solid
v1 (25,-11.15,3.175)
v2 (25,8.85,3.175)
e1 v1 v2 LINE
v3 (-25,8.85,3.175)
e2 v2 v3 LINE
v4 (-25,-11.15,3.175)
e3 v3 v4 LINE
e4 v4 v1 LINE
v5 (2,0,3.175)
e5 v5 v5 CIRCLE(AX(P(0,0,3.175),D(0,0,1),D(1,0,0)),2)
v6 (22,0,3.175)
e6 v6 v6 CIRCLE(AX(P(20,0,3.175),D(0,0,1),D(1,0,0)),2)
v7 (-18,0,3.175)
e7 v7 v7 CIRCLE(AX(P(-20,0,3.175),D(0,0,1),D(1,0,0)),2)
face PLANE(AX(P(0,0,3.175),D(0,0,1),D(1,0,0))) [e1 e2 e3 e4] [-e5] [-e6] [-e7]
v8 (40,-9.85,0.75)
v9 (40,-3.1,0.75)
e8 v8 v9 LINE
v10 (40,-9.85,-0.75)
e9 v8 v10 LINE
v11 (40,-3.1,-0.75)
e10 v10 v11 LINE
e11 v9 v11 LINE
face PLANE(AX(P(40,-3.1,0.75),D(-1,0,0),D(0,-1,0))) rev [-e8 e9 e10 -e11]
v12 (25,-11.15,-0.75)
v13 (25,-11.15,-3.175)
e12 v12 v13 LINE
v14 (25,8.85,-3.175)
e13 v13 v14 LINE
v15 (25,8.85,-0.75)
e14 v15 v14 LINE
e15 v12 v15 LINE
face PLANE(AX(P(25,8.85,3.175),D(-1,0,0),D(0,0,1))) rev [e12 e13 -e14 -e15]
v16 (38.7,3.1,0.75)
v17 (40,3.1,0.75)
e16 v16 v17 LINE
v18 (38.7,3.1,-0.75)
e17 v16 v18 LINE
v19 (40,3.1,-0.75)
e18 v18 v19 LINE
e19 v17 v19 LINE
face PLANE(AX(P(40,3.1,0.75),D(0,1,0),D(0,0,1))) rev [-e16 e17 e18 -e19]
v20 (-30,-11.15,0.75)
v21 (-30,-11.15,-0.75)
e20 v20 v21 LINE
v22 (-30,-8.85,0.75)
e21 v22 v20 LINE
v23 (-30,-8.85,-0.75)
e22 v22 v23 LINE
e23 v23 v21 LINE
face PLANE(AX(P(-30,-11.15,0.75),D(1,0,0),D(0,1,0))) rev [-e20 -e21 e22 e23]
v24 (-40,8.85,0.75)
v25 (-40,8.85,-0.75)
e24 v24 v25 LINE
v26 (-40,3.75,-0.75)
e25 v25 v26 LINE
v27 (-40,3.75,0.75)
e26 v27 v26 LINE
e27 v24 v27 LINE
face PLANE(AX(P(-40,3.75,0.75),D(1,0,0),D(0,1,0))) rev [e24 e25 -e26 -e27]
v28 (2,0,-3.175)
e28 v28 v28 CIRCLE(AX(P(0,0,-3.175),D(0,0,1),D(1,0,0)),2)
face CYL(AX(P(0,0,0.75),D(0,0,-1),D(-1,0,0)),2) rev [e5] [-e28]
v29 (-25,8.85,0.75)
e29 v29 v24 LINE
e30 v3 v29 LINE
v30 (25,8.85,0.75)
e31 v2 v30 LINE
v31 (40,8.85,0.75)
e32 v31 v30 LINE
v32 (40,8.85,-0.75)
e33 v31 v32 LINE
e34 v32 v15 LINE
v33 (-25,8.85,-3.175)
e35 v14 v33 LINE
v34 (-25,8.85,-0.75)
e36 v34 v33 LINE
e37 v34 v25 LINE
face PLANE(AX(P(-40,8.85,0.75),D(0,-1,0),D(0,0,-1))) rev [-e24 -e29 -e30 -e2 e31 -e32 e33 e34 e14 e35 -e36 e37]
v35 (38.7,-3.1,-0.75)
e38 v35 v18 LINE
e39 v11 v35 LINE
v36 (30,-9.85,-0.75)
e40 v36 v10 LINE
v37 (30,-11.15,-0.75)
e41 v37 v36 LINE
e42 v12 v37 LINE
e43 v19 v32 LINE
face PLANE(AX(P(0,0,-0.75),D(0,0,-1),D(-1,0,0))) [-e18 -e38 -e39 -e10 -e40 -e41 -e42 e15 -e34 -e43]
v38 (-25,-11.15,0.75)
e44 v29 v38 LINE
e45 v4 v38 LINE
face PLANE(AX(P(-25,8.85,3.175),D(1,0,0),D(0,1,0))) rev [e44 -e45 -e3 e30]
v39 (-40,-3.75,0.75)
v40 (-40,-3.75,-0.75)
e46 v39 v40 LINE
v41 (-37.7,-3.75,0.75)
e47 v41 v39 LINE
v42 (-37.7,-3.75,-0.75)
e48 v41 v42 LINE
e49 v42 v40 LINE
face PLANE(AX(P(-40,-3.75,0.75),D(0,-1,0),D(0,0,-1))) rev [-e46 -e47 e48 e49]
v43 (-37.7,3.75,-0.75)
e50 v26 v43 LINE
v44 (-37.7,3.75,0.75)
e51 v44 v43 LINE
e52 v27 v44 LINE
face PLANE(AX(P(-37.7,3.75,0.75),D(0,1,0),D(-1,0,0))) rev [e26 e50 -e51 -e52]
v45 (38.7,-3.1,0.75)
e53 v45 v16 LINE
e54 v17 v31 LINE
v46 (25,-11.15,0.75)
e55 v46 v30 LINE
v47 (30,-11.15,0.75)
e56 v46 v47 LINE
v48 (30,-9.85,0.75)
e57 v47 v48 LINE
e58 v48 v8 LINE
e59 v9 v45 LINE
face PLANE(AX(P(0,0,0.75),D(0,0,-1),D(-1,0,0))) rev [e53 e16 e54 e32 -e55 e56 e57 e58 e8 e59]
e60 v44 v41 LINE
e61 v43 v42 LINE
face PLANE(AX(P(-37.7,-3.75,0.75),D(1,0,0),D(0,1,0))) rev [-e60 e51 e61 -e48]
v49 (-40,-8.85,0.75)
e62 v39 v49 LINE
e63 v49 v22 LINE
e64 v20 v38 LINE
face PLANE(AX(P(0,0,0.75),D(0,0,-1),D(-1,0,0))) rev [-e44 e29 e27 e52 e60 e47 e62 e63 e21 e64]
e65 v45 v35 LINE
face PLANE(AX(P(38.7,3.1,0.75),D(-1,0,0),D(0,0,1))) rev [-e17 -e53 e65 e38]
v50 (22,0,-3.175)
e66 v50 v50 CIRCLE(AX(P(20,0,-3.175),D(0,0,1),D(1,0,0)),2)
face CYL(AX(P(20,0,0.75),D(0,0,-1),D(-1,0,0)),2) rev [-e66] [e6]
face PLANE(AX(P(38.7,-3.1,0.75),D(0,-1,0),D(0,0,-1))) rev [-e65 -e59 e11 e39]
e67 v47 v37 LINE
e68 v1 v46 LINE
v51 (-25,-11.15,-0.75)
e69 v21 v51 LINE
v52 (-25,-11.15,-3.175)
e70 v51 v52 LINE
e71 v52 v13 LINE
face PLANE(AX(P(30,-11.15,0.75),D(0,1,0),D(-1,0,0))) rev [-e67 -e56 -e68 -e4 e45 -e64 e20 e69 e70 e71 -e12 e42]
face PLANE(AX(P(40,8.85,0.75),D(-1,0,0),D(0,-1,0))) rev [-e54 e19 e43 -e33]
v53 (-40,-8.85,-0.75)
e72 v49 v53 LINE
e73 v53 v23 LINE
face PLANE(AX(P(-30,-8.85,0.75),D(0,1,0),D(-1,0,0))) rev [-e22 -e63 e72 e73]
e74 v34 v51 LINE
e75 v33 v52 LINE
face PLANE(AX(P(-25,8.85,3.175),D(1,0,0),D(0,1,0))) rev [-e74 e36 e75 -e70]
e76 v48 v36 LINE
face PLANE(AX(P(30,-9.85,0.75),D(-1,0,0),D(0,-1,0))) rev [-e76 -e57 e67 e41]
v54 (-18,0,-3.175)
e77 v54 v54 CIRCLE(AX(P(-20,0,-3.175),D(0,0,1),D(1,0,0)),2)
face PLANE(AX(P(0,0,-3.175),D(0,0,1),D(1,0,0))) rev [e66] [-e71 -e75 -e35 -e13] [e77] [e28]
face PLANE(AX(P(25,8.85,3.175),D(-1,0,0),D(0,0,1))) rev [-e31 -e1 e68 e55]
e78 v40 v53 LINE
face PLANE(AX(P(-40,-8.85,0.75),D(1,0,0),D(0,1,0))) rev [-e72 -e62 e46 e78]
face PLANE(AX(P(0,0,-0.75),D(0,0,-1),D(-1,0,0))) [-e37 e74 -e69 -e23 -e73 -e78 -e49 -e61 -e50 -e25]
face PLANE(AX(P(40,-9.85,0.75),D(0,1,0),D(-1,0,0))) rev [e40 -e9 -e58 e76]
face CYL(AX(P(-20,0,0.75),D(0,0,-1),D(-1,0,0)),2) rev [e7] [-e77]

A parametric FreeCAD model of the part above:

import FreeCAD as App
import Part
import Sketcher


def add_polygon(sketch, points):
    """Adds a closed chain of lines whose ends are joined by coincident constraints."""
    first, n = sketch.GeometryCount, len(points)
    for a, b in zip(points, points[1:] + points[:1]):
        sketch.addGeometry(Part.LineSegment(App.Vector(*a, 0), App.Vector(*b, 0)), False)
    for i in range(n):
        sketch.addConstraint(Sketcher.Constraint("Coincident", first + i, 2, first + (i + 1) % n, 1))

doc = App.newDocument("Part")
body = doc.addObject("PartDesign::Body", "Body")

sketch1 = doc.addObject("Sketcher::SketchObject", "Sketch")
body.addObject(sketch1)
sketch1.AttachmentSupport = (doc.XY_Plane, [""])
sketch1.MapMode = "FlatFace"
add_polygon(sketch1, [(40, 8.8), (-40, 8.8), (-40, 3.8), (-37.7, 3.8), (-37.7, -3.8), (-40, -3.8), (-40, -8.8), (-30, -8.8), (-30, -11.2), (30, -11.2), (30, -9.8), (40, -9.8), (40, -3.1), (38.7, -3.1), (38.7, 3.1), (40, 3.1)])
sketch1.addGeometry(Part.Circle(App.Vector(20, 0, 0), App.Vector(0, 0, 1), 2), False)
sketch1.addGeometry(Part.Circle(App.Vector(0, 0, 0), App.Vector(0, 0, 1), 2), False)
sketch1.addGeometry(Part.Circle(App.Vector(-20, 0, 0), App.Vector(0, 0, 1), 2), False)
sketch1.addConstraint(Sketcher.Constraint("Horizontal", 0))
sketch1.addConstraint(Sketcher.Constraint("Vertical", 1))
sketch1.addConstraint(Sketcher.Constraint("Horizontal", 2))
sketch1.addConstraint(Sketcher.Constraint("Vertical", 3))
sketch1.addConstraint(Sketcher.Constraint("Horizontal", 4))
sketch1.addConstraint(Sketcher.Constraint("Vertical", 5))
sketch1.addConstraint(Sketcher.Constraint("Horizontal", 6))
sketch1.addConstraint(Sketcher.Constraint("Vertical", 7))
sketch1.addConstraint(Sketcher.Constraint("Horizontal", 8))
sketch1.addConstraint(Sketcher.Constraint("Vertical", 9))
sketch1.addConstraint(Sketcher.Constraint("Horizontal", 10))
sketch1.addConstraint(Sketcher.Constraint("Vertical", 11))
sketch1.addConstraint(Sketcher.Constraint("Horizontal", 12))
sketch1.addConstraint(Sketcher.Constraint("Vertical", 13))
sketch1.addConstraint(Sketcher.Constraint("Horizontal", 14))
sketch1.addConstraint(Sketcher.Constraint("Vertical", 15))
sketch1.addConstraint(Sketcher.Constraint("Coincident", 17, 3, -1, 1))
sketch1.addConstraint(Sketcher.Constraint("Equal", 16, 17))
sketch1.addConstraint(Sketcher.Constraint("Equal", 17, 18))
sketch1.addConstraint(Sketcher.Constraint("Symmetric", 16, 3, 18, 3, -1, 1))
sketch1.addConstraint(Sketcher.Constraint("Symmetric", 5, 2, 15, 2, -1, 1))
sketch1.addConstraint(Sketcher.Constraint("Symmetric", 1, 2, 4, 2, -1))
sketch1.addConstraint(Sketcher.Constraint("Symmetric", 11, 2, 14, 2, -1))
sketch1.addConstraint(Sketcher.Constraint("PointOnObject", 16, 3, -1))
sketch1.addConstraint(Sketcher.Constraint("Equal", 6, 10))
sketch1.addConstraint(Sketcher.Constraint("Equal", 4, 7))
sketch1.addConstraint(Sketcher.Constraint("Equal", 14, 9))
sketch1.addConstraint(Sketcher.Constraint("Diameter", 16, 4.0))
sketch1.addConstraint(Sketcher.Constraint("DistanceX", 0, 2, 0, 1, 80.0))
sketch1.addConstraint(Sketcher.Constraint("DistanceX", 6, 1, 6, 2, 10.0))
sketch1.addConstraint(Sketcher.Constraint("DistanceX", 2, 1, 2, 2, 2.3))
sketch1.addConstraint(Sketcher.Constraint("DistanceX", 12, 2, 12, 1, 1.3))
sketch1.addConstraint(Sketcher.Constraint("DistanceY", 1, 2, 1, 1, 5.1))
sketch1.addConstraint(Sketcher.Constraint("DistanceY", 3, 2, 3, 1, 7.5))
sketch1.addConstraint(Sketcher.Constraint("DistanceY", 13, 1, 13, 2, 6.2))
sketch1.addConstraint(Sketcher.Constraint("DistanceX", -1, 1, 16, 3, 20.0))
pad1 = doc.addObject("PartDesign::Pad", "Pad")
body.addObject(pad1)
pad1.Profile = sketch1
pad1.Length = 1.5
pad1.Midplane = True

sketch2 = doc.addObject("Sketcher::SketchObject", "Sketch001")
body.addObject(sketch2)
sketch2.AttachmentSupport = (doc.XY_Plane, [""])
sketch2.MapMode = "FlatFace"
add_polygon(sketch2, [(-25, 8.8), (-25, -11.2), (25, -11.2), (25, 8.8)])
sketch2.addGeometry(Part.Circle(App.Vector(-20, 0, 0), App.Vector(0, 0, 1), 2), False)
sketch2.addGeometry(Part.Circle(App.Vector(0, 0, 0), App.Vector(0, 0, 1), 2), False)
sketch2.addGeometry(Part.Circle(App.Vector(20, 0, 0), App.Vector(0, 0, 1), 2), False)
sketch2.addConstraint(Sketcher.Constraint("Vertical", 0))
sketch2.addConstraint(Sketcher.Constraint("Horizontal", 1))
sketch2.addConstraint(Sketcher.Constraint("Vertical", 2))
sketch2.addConstraint(Sketcher.Constraint("Horizontal", 3))
sketch2.addConstraint(Sketcher.Constraint("Coincident", 5, 3, -1, 1))
sketch2.addConstraint(Sketcher.Constraint("Equal", 4, 5))
sketch2.addConstraint(Sketcher.Constraint("Equal", 5, 6))
sketch2.addConstraint(Sketcher.Constraint("Symmetric", 4, 3, 6, 3, -1, 1))
sketch2.addConstraint(Sketcher.Constraint("PointOnObject", 4, 3, -1))
sketch2.addConstraint(Sketcher.Constraint("Diameter", 4, 4.0))
sketch2.addConstraint(Sketcher.Constraint("DistanceX", 1, 1, 1, 2, 50.0))
sketch2.addConstraint(Sketcher.Constraint("DistanceY", 0, 2, 0, 1, 20.0))
sketch2.addConstraint(Sketcher.Constraint("DistanceX", 4, 3, -1, 1, 20.0))
sketch2.addConstraint(Sketcher.Constraint("DistanceX", 0, 2, -1, 1, 25.0))
sketch2.addConstraint(Sketcher.Constraint("DistanceY", 0, 2, -1, 1, 11.15))
pad2 = doc.addObject("PartDesign::Pad", "Pad001")
body.addObject(pad2)
pad2.Profile = sketch2
pad2.Length = 6.35
pad2.Midplane = True

doc.recompute()
